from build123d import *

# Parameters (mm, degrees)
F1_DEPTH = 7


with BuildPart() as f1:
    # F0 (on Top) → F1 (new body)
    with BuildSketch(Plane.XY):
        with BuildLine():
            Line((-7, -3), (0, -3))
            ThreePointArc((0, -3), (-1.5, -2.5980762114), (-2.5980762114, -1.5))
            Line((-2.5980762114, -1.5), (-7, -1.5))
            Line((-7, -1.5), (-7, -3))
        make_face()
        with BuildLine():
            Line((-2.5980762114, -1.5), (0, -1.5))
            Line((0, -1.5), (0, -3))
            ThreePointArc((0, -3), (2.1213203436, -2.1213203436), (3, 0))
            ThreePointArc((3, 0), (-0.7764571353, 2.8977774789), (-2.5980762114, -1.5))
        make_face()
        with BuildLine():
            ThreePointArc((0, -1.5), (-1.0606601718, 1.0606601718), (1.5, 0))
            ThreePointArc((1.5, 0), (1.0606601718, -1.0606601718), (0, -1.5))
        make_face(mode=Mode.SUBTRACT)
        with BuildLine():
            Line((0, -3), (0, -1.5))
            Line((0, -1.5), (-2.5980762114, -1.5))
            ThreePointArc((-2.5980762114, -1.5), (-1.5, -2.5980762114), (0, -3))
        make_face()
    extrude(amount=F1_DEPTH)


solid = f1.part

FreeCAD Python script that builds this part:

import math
import FreeCAD as App
import Part
import Sketcher
from FreeCAD import Vector
Q = App.Units.Quantity

doc = App.newDocument("Part")
params = doc.addObject("Spreadsheet::Sheet", "Params")
for row, (alias, value) in enumerate([
    ("sketch1_radius", "3 mm"),
    ("sketch1_radius2", "1.5 mm"),
    ("sketch1_width", "7 mm"),
    ("pad1_length", "7 mm"),
], start=1):
    params.set(f"A{row}", alias)
    params.set(f"B{row}", "=" + value)
    params.setAlias(f"B{row}", alias)

body = doc.addObject("PartDesign::Body", "Body")

sketch1 = doc.addObject("Sketcher::SketchObject", "Sketch")
body.addObject(sketch1)
sketch1.AttachmentSupport = (doc.XY_Plane, [""])
sketch1.MapMode = "FlatFace"
sketch1.addGeometry(Part.LineSegment(Vector(-7, -3, 0), Vector(0, -3, 0)), False)
sketch1.addGeometry(Part.ArcOfCircle(Part.Circle(Vector(0, 0, 0), Vector(0, 0, 1), 3), math.radians(-90), math.radians(0)), False)
sketch1.addGeometry(Part.ArcOfCircle(Part.Circle(Vector(0, 0, 0), Vector(0, 0, 1), 3), math.radians(0), math.radians(210)), False)
sketch1.addGeometry(Part.LineSegment(Vector(-2.598076, -1.5, 0), Vector(-7, -1.5, 0)), False)
sketch1.addGeometry(Part.LineSegment(Vector(-7, -1.5, 0), Vector(-7, -3, 0)), False)
sketch1.addGeometry(Part.ArcOfCircle(Part.Circle(Vector(0, 0, 0), Vector(0, 0, 1), 1.5), math.radians(0), math.radians(270)), False)
sketch1.addGeometry(Part.ArcOfCircle(Part.Circle(Vector(0, 0, 0), Vector(0, 0, 1), 1.5), math.radians(-90), math.radians(0)), False)
sketch1.addConstraint(Sketcher.Constraint("Tangent", 0, 2, 1, 1))
sketch1.addConstraint(Sketcher.Constraint("Tangent", 1, 2, 2, 1))
sketch1.addConstraint(Sketcher.Constraint("Coincident", 2, 2, 3, 1))
sketch1.addConstraint(Sketcher.Constraint("Coincident", 3, 2, 4, 1))
sketch1.addConstraint(Sketcher.Constraint("Coincident", 4, 2, 0, 1))
sketch1.addConstraint(Sketcher.Constraint("Tangent", 5, 1, 6, 2))
sketch1.addConstraint(Sketcher.Constraint("Coincident", 6, 1, 5, 2))
sketch1.addConstraint(Sketcher.Constraint("Horizontal", 0))
sketch1.addConstraint(Sketcher.Constraint("Horizontal", 3))
sketch1.addConstraint(Sketcher.Constraint("Vertical", 4))
sketch1.addConstraint(Sketcher.Constraint("Coincident", 1, 3, -1, 1))
sketch1.addConstraint(Sketcher.Constraint("Coincident", 5, 3, -1, 1))
sketch1.addConstraint(Sketcher.Constraint("Equal", 1, 2))
sketch1.addConstraint(Sketcher.Constraint("PointOnObject", 1, 2, -1))
sketch1.addConstraint(Sketcher.Constraint("PointOnObject", 5, 1, -1))
sketch1.addConstraint(Sketcher.Constraint("PointOnObject", 6, 1, -2))
sketch1.addConstraint(Sketcher.Constraint("Horizontal", 3, 2, 6, 1))
sketch1.addConstraint(Sketcher.Constraint("Radius", 1, Q("3 mm")))
sketch1.addConstraint(Sketcher.Constraint("Radius", 5, Q("1.5 mm")))
sketch1.addConstraint(Sketcher.Constraint("DistanceX", 0, 1, 0, 2, Q("7 mm")))
sketch1.setExpression("Constraints[17]", "Params.sketch1_radius")
sketch1.setExpression("Constraints[18]", "Params.sketch1_radius2")
sketch1.setExpression("Constraints[19]", "Params.sketch1_width")
pad1 = doc.addObject("PartDesign::Pad", "Pad")
body.addObject(pad1)
pad1.Profile = sketch1
pad1.setExpression("Length", "Params.pad1_length")

doc.recompute()
